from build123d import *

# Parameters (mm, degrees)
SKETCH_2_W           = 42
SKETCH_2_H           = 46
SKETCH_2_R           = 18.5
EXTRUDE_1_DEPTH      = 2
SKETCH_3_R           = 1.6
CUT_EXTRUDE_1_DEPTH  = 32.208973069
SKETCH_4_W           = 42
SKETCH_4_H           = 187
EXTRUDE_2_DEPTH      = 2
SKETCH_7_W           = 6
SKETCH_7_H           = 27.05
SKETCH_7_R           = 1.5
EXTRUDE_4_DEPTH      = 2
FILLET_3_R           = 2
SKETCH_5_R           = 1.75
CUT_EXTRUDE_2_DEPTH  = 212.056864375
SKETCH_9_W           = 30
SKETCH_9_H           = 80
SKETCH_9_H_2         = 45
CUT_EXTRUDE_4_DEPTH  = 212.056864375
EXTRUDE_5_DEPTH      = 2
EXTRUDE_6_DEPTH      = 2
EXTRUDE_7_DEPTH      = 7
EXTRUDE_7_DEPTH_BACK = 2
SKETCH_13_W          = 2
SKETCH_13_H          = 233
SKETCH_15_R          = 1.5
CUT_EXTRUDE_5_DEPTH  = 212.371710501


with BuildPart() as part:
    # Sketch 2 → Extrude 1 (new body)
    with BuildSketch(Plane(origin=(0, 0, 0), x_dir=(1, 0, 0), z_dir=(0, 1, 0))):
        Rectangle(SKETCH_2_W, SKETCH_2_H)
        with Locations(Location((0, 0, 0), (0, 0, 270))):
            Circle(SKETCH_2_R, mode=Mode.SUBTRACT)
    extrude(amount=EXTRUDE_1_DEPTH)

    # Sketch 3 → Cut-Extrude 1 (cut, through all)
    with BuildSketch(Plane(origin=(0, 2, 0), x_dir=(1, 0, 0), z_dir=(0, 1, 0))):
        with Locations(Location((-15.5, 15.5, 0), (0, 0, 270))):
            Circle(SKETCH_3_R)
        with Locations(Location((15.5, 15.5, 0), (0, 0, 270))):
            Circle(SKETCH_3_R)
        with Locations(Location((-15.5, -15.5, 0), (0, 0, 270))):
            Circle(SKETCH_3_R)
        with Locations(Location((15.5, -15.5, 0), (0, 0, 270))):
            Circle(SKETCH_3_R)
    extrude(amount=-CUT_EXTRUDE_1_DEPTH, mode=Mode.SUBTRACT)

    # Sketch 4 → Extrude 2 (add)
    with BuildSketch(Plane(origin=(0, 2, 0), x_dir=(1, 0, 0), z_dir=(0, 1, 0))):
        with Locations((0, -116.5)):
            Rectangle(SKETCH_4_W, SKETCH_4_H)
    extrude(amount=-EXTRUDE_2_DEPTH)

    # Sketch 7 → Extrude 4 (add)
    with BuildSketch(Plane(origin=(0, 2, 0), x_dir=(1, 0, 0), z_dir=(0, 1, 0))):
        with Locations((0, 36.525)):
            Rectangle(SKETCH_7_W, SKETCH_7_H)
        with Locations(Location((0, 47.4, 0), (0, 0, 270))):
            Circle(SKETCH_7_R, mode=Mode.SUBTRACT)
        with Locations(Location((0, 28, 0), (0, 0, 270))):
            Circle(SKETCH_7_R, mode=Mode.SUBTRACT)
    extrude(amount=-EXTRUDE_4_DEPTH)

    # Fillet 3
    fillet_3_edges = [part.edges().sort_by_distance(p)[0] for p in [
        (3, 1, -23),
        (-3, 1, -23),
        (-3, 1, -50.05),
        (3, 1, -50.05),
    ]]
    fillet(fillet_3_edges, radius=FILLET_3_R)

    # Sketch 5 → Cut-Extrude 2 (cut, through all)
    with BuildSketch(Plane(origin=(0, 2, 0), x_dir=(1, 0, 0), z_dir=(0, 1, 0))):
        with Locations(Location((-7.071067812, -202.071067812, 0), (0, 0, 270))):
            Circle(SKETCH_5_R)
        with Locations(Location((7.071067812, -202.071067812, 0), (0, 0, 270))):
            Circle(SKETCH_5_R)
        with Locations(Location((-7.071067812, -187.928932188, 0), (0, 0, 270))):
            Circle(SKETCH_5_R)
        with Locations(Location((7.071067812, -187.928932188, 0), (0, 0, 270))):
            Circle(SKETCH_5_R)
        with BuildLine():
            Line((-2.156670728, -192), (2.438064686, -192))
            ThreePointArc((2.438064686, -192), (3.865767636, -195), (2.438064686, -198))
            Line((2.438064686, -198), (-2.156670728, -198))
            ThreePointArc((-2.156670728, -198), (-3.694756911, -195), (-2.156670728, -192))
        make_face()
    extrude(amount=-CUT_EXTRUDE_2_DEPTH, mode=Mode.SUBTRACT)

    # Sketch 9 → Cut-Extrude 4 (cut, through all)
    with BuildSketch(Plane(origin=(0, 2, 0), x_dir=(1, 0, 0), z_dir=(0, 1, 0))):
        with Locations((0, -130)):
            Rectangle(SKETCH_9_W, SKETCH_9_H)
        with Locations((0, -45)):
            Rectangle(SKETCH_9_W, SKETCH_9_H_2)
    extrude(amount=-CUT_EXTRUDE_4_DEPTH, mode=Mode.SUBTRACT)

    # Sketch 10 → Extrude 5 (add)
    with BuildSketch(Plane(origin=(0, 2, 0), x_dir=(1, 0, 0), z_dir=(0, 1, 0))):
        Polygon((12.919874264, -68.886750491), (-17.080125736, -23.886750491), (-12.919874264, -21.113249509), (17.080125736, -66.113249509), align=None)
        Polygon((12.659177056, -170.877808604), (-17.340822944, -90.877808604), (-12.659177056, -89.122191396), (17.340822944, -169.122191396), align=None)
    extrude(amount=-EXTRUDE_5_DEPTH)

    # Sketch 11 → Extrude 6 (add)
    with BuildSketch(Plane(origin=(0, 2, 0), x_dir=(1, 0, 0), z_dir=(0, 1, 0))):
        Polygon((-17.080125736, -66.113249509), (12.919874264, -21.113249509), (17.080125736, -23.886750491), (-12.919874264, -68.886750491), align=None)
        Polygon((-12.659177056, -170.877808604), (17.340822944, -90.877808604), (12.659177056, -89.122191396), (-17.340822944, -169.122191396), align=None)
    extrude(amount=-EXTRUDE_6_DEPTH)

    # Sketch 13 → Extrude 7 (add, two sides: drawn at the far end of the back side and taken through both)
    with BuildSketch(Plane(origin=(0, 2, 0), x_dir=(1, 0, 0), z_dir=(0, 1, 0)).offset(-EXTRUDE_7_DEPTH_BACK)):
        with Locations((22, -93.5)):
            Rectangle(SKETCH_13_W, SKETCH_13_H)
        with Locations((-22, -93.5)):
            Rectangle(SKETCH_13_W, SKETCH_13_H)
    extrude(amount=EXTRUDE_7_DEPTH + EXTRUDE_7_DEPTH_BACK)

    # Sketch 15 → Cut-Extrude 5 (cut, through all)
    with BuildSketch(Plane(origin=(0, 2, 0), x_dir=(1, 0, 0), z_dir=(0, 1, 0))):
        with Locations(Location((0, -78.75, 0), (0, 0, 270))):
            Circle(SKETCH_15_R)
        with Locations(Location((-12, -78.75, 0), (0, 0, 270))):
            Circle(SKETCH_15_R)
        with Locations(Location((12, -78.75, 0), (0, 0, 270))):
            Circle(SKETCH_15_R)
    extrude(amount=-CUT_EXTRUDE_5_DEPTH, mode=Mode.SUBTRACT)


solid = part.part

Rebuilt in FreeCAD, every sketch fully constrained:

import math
import FreeCAD as App
import Part
import Sketcher
from FreeCAD import Vector
Q = App.Units.Quantity


def edges_at(feature, points):
    """Names of the edges that pass closest to the given points."""
    edges = feature.Shape.Edges
    near = lambda p: min(range(len(edges)), key=lambda i: edges[i].distToShape(Part.Vertex(*p))[0])
    return sorted({f"Edge{near(p) + 1}" for p in points})

doc = App.newDocument("Part")
body = doc.addObject("PartDesign::Body", "Body")

# Sketch on XZ plane
sketch1 = body.newObject("Sketcher::SketchObject", "Sketch")
sketch1.AttachmentSupport = (doc.getObject("XZ_Plane"), [""])
sketch1.MapMode = "FlatFace"
sketch1.addGeometry([
    Part.LineSegment(Vector(-21, -23, 0), Vector(-21, 23, 0)),  # 0
    Part.LineSegment(Vector(-21, 23, 0), Vector(21, 23, 0)),  # 1
    Part.LineSegment(Vector(21, 23, 0), Vector(21, -23, 0)),  # 2
    Part.LineSegment(Vector(21, -23, 0), Vector(-21, -23, 0)),  # 3
    Part.Circle(Vector(0, 0, 0), Vector(0, 0, 1), 18),  # 4
], False)
sketch1.addConstraint([
    Sketcher.Constraint("Coincident", 0, 2, 1, 1),
    Sketcher.Constraint("Coincident", 1, 2, 2, 1),
    Sketcher.Constraint("Coincident", 2, 2, 3, 1),
    Sketcher.Constraint("Coincident", 3, 2, 0, 1),
    Sketcher.Constraint("Vertical", 0),
    Sketcher.Constraint("Horizontal", 1),
    Sketcher.Constraint("Vertical", 2),
    Sketcher.Constraint("Horizontal", 3),
    Sketcher.Constraint("Coincident", 4, 3, -1, 1),
    Sketcher.Constraint("Symmetric", 0, 2, 2, 2, -1, 1),
    Sketcher.Constraint("Diameter", 4, Q("37 mm")),
    Sketcher.Constraint("DistanceX", 1, 1, 1, 2, Q("42 mm")),
    Sketcher.Constraint("DistanceY", 0, 1, 0, 2, Q("46 mm")),
])
pad1 = body.newObject("PartDesign::Pad", "Pad")
pad1.Profile = sketch1
pad1.Length = 2
pad1.Reversed = True

# Sketch on XZ plane
sketch2 = body.newObject("Sketcher::SketchObject", "Sketch001")
sketch2.AttachmentSupport = (doc.getObject("XZ_Plane"), [""])
sketch2.MapMode = "FlatFace"
sketch2.AttachmentOffset = App.Placement(Vector(0, 0, -2), App.Rotation())
sketch2.addGeometry([
    Part.Circle(Vector(-15.5, -15.5, 0), Vector(0, 0, 1), 1.6),
    Part.Circle(Vector(15.5, -15.5, 0), Vector(0, 0, 1), 1.6),
    Part.Circle(Vector(-15.5, 15.5, 0), Vector(0, 0, 1), 1.6),
    Part.Circle(Vector(15.5, 15.5, 0), Vector(0, 0, 1), 1.6),
], False)
sketch2.addConstraint([
    Sketcher.Constraint("Equal", 0, 1),
    Sketcher.Constraint("Equal", 1, 2),
    Sketcher.Constraint("Equal", 2, 3),
    Sketcher.Constraint("Symmetric", 1, 3, 2, 3, -1, 1),
    Sketcher.Constraint("Symmetric", 0, 3, 3, 3, -1, 1),
    Sketcher.Constraint("Symmetric", 0, 3, 1, 3, -2),
    Sketcher.Constraint("Diameter", 0, Q("3.2 mm")),
    Sketcher.Constraint("DistanceX", 0, 3, 1, 3, Q("31 mm")),
    Sketcher.Constraint("DistanceY", 0, 3, 2, 3, Q("31 mm")),
])
pocket1 = body.newObject("PartDesign::Pocket", "Pocket")
pocket1.Profile = sketch2
pocket1.Type = "ThroughAll"
pocket1.Reversed = True

# Sketch on XZ plane
sketch3 = body.newObject("Sketcher::SketchObject", "Sketch002")
sketch3.AttachmentSupport = (doc.getObject("XZ_Plane"), [""])
sketch3.MapMode = "FlatFace"
sketch3.AttachmentOffset = App.Placement(Vector(0, 0, -2), App.Rotation())
sketch3.addGeometry([
    Part.LineSegment(Vector(-21, 23, 0), Vector(-21, 210, 0)),
    Part.LineSegment(Vector(-21, 210, 0), Vector(21, 210, 0)),
    Part.LineSegment(Vector(21, 210, 0), Vector(21, 23, 0)),
    Part.LineSegment(Vector(21, 23, 0), Vector(-21, 23, 0)),
], False)
sketch3.addConstraint([
    Sketcher.Constraint("Coincident", 0, 2, 1, 1),
    Sketcher.Constraint("Coincident", 1, 2, 2, 1),
    Sketcher.Constraint("Coincident", 2, 2, 3, 1),
    Sketcher.Constraint("Coincident", 3, 2, 0, 1),
    Sketcher.Constraint("Vertical", 0),
    Sketcher.Constraint("Horizontal", 1),
    Sketcher.Constraint("Vertical", 2),
    Sketcher.Constraint("Horizontal", 3),
    Sketcher.Constraint("DistanceX", 1, 1, 1, 2, Q("42 mm")),
    Sketcher.Constraint("DistanceY", 0, 1, 0, 2, Q("187 mm")),
    Sketcher.Constraint("DistanceX", 0, 2, -1, 1, Q("21 mm")),
    Sketcher.Constraint("DistanceY", -1, 1, 0, 2, Q("210 mm")),
])
pad2 = body.newObject("PartDesign::Pad", "Pad001")
pad2.Profile = sketch3
pad2.Length = 2

# Sketch on XZ plane
sketch4 = body.newObject("Sketcher::SketchObject", "Sketch003")
sketch4.AttachmentSupport = (doc.getObject("XZ_Plane"), [""])
sketch4.MapMode = "FlatFace"
sketch4.AttachmentOffset = App.Placement(Vector(0, 0, -2), App.Rotation())
sketch4.addGeometry([
    Part.LineSegment(Vector(-3, -50, 0), Vector(-3, -23, 0)),  # 0
    Part.LineSegment(Vector(-3, -23, 0), Vector(3, -23, 0)),  # 1
    Part.LineSegment(Vector(3, -23, 0), Vector(3, -50, 0)),  # 2
    Part.LineSegment(Vector(3, -50, 0), Vector(-3, -50, 0)),  # 3
    Part.Circle(Vector(0, -28, 0), Vector(0, 0, 1), 1.5),  # 4
    Part.Circle(Vector(0, -47.4, 0), Vector(0, 0, 1), 1.5),  # 5
], False)
sketch4.addConstraint([
    Sketcher.Constraint("Coincident", 0, 2, 1, 1),
    Sketcher.Constraint("Coincident", 1, 2, 2, 1),
    Sketcher.Constraint("Coincident", 2, 2, 3, 1),
    Sketcher.Constraint("Coincident", 3, 2, 0, 1),
    Sketcher.Constraint("Vertical", 0),
    Sketcher.Constraint("Horizontal", 1),
    Sketcher.Constraint("Vertical", 2),
    Sketcher.Constraint("Horizontal", 3),
    Sketcher.Constraint("Equal", 4, 5),
    Sketcher.Constraint("PointOnObject", 4, 3, -2),
    Sketcher.Constraint("PointOnObject", 5, 3, -2),
    Sketcher.Constraint("Diameter", 4, Q("3 mm")),
    Sketcher.Constraint("DistanceX", 1, 1, 1, 2, Q("6 mm")),
    Sketcher.Constraint("DistanceY", 4, 3, -1, 1, Q("28 mm")),
    Sketcher.Constraint("DistanceX", 0, 2, -1, 1, Q("3 mm")),
    Sketcher.Constraint("DistanceY", 0, 2, -1, 1, Q("23 mm")),
    Sketcher.Constraint("DistanceY", 0, 1, 0, 2, Q("27.05 mm")),
    Sketcher.Constraint("DistanceY", 5, 3, -1, 1, Q("47.4 mm")),
])
pad3 = body.newObject("PartDesign::Pad", "Pad002")
pad3.Profile = sketch4
pad3.Length = 2
doc.recompute()

fillet = body.newObject("PartDesign::Fillet", "Fillet")
fillet.Base = (pad3, edges_at(pad3, [
    (3, 1, -23),
    (-3, 1, -23),
    (-3, 1, -50.05),
    (3, 1, -50.05),
]))
fillet.Radius = 2

# Sketch on XZ plane
sketch5 = body.newObject("Sketcher::SketchObject", "Sketch004")
sketch5.AttachmentSupport = (doc.getObject("XZ_Plane"), [""])
sketch5.MapMode = "FlatFace"
sketch5.AttachmentOffset = App.Placement(Vector(0, 0, -2), App.Rotation())
sketch5.addGeometry([
    Part.Circle(Vector(-7.1, 202.1, 0), Vector(0, 0, 1), 1.8),  # 0
    Part.Circle(Vector(7.1, 202.1, 0), Vector(0, 0, 1), 1.8),  # 1
    Part.Circle(Vector(-7.1, 187.9, 0), Vector(0, 0, 1), 1.8),  # 2
    Part.Circle(Vector(7.1, 187.9, 0), Vector(0, 0, 1), 1.8),  # 3
    Part.LineSegment(Vector(2.4, 192, 0), Vector(-2.2, 192, 0)),  # 4
    Part.ArcOfCircle(Part.Circle(Vector(0, 195, 0), Vector(0, 0, 1), 3.7), math.radians(126), math.radians(234)),  # 5
    Part.LineSegment(Vector(-2.2, 198, 0), Vector(2.4, 198, 0)),  # 6
    Part.ArcOfCircle(Part.Circle(Vector(0, 195, 0), Vector(0, 0, 1), 3.9), math.radians(-51), math.radians(51)),  # 7
], False)
sketch5.addConstraint([
    Sketcher.Constraint("Coincident", 4, 2, 5, 2),
    Sketcher.Constraint("Coincident", 5, 1, 6, 1),
    Sketcher.Constraint("Coincident", 6, 2, 7, 2),
    Sketcher.Constraint("Coincident", 7, 1, 4, 1),
    Sketcher.Constraint("Horizontal", 4),
    Sketcher.Constraint("Horizontal", 6),
    Sketcher.Constraint("Coincident", 7, 3, 5, 3),
    Sketcher.Constraint("Equal", 0, 1),
    Sketcher.Constraint("Equal", 1, 2),
    Sketcher.Constraint("Equal", 2, 3),
    Sketcher.Constraint("Symmetric", 0, 3, 1, 3, -2),
    Sketcher.Constraint("Symmetric", 2, 3, 3, 3, -2),
    Sketcher.Constraint("PointOnObject", 5, 3, -2),
    Sketcher.Constraint("Vertical", 0, 3, 2, 3),
    Sketcher.Constraint("Vertical", 4, 2, 5, 1),
    Sketcher.Constraint("Diameter", 0, Q("3.5 mm")),
    Sketcher.Constraint("DistanceY", -1, 1, 5, 3, Q("195 mm")),
    Sketcher.Constraint("DistanceY", -1, 1, 4, 2, Q("192 mm")),
    Sketcher.Constraint("Radius", 5, Q("3.694757 mm")),
    Sketcher.Constraint("Radius", 7, Q("3.865768 mm")),
    Sketcher.Constraint("DistanceX", 4, 2, 3, 3, Q("9.227739 mm")),
    Sketcher.Constraint("DistanceY", -1, 1, 0, 3, Q("202.071068 mm")),
    Sketcher.Constraint("DistanceY", -1, 1, 2, 3, Q("187.928932 mm")),
])
pocket2 = body.newObject("PartDesign::Pocket", "Pocket001")
pocket2.Profile = sketch5
pocket2.Type = "ThroughAll"
pocket2.Reversed = True

# Sketch on XZ plane
sketch6 = body.newObject("Sketcher::SketchObject", "Sketch005")
sketch6.AttachmentSupport = (doc.getObject("XZ_Plane"), [""])
sketch6.MapMode = "FlatFace"
sketch6.AttachmentOffset = App.Placement(Vector(0, 0, -2), App.Rotation())
sketch6.addGeometry([
    Part.LineSegment(Vector(-15, 90, 0), Vector(-15, 170, 0)),  # 0
    Part.LineSegment(Vector(-15, 170, 0), Vector(15, 170, 0)),  # 1
    Part.LineSegment(Vector(15, 170, 0), Vector(15, 90, 0)),  # 2
    Part.LineSegment(Vector(15, 90, 0), Vector(-15, 90, 0)),  # 3
    Part.LineSegment(Vector(-15, 22, 0), Vector(-15, 68, 0)),  # 4
    Part.LineSegment(Vector(-15, 68, 0), Vector(15, 68, 0)),  # 5
    Part.LineSegment(Vector(15, 68, 0), Vector(15, 22, 0)),  # 6
    Part.LineSegment(Vector(15, 22, 0), Vector(-15, 22, 0)),  # 7
], False)
sketch6.addConstraint([
    Sketcher.Constraint("Coincident", 0, 2, 1, 1),
    Sketcher.Constraint("Coincident", 1, 2, 2, 1),
    Sketcher.Constraint("Coincident", 2, 2, 3, 1),
    Sketcher.Constraint("Coincident", 3, 2, 0, 1),
    Sketcher.Constraint("Coincident", 4, 2, 5, 1),
    Sketcher.Constraint("Coincident", 5, 2, 6, 1),
    Sketcher.Constraint("Coincident", 6, 2, 7, 1),
    Sketcher.Constraint("Coincident", 7, 2, 4, 1),
    Sketcher.Constraint("Vertical", 0),
    Sketcher.Constraint("Horizontal", 1),
    Sketcher.Constraint("Vertical", 2),
    Sketcher.Constraint("Horizontal", 3),
    Sketcher.Constraint("Vertical", 4),
    Sketcher.Constraint("Horizontal", 5),
    Sketcher.Constraint("Vertical", 6),
    Sketcher.Constraint("Horizontal", 7),
    Sketcher.Constraint("Vertical", 3, 2, 4, 2),
    Sketcher.Constraint("Vertical", 2, 2, 5, 2),
    Sketcher.Constraint("DistanceX", 1, 1, 1, 2, Q("30 mm")),
    Sketcher.Constraint("DistanceY", 0, 1, 0, 2, Q("80 mm")),
    Sketcher.Constraint("DistanceY", 4, 1, 4, 2, Q("45 mm")),
    Sketcher.Constraint("DistanceX", 0, 2, -1, 1, Q("15 mm")),
    Sketcher.Constraint("DistanceY", -1, 1, 0, 2, Q("170 mm")),
    Sketcher.Constraint("DistanceY", -1, 1, 4, 2, Q("67.5 mm")),
])
pocket3 = body.newObject("PartDesign::Pocket", "Pocket002")
pocket3.Profile = sketch6
pocket3.Type = "ThroughAll"
pocket3.Reversed = True

# Sketch on XZ plane
sketch7 = body.newObject("Sketcher::SketchObject", "Sketch006")
sketch7.AttachmentSupport = (doc.getObject("XZ_Plane"), [""])
sketch7.MapMode = "FlatFace"
sketch7.AttachmentOffset = App.Placement(Vector(0, 0, -2), App.Rotation())
sketch7.addGeometry([
    Part.LineSegment(Vector(-17, 24, 0), Vector(13, 69, 0)),  # 0
    Part.LineSegment(Vector(13, 69, 0), Vector(17, 66, 0)),  # 1
    Part.LineSegment(Vector(17, 66, 0), Vector(-13, 21, 0)),  # 2
    Part.LineSegment(Vector(-13, 21, 0), Vector(-17, 24, 0)),  # 3
    Part.LineSegment(Vector(-17, 91, 0), Vector(13, 171, 0)),  # 4
    Part.LineSegment(Vector(13, 171, 0), Vector(17, 169, 0)),  # 5
    Part.LineSegment(Vector(17, 169, 0), Vector(-13, 89, 0)),  # 6
    Part.LineSegment(Vector(-13, 89, 0), Vector(-17, 91, 0)),  # 7
], False)
sketch7.addConstraint([
    Sketcher.Constraint("Coincident", 0, 2, 1, 1),
    Sketcher.Constraint("Coincident", 1, 2, 2, 1),
    Sketcher.Constraint("Coincident", 2, 2, 3, 1),
    Sketcher.Constraint("Coincident", 3, 2, 0, 1),
    Sketcher.Constraint("Coincident", 4, 2, 5, 1),
    Sketcher.Constraint("Coincident", 5, 2, 6, 1),
    Sketcher.Constraint("Coincident", 6, 2, 7, 1),
    Sketcher.Constraint("Coincident", 7, 2, 4, 1),
    Sketcher.Constraint("Perpendicular", 0, 1),
    Sketcher.Constraint("Perpendicular", 1, 2),
    Sketcher.Constraint("Perpendicular", 2, 3),
    Sketcher.Constraint("Perpendicular", 4, 5),
    Sketcher.Constraint("Perpendicular", 5, 6),
    Sketcher.Constraint("Perpendicular", 6, 7),
    Sketcher.Constraint("Equal", 3, 5),
    Sketcher.Constraint("Distance", 1, Q("5 mm")),
    Sketcher.Constraint("DistanceX", 2, 2, 1, 2, Q("30 mm")),
    Sketcher.Constraint("DistanceY", 2, 2, 1, 2, Q("45 mm")),
    Sketcher.Constraint("DistanceX", 6, 2, 5, 2, Q("30 mm")),
    Sketcher.Constraint("DistanceY", 6, 2, 5, 2, Q("80 mm")),
    Sketcher.Constraint("DistanceY", -1, 1, 0, 2, Q("68.88675 mm")),
    Sketcher.Constraint("DistanceY", -1, 1, 4, 2, Q("170.877809 mm")),
    Sketcher.Constraint("DistanceX", 4, 2, 1, 2, Q("4.420949 mm")),
    Sketcher.Constraint("DistanceX", -1, 1, 0, 2, Q("12.919874 mm")),
])
pad4 = body.newObject("PartDesign::Pad", "Pad003")
pad4.Profile = sketch7
pad4.Length = 2

# Sketch on XZ plane
sketch8 = body.newObject("Sketcher::SketchObject", "Sketch007")
sketch8.AttachmentSupport = (doc.getObject("XZ_Plane"), [""])
sketch8.MapMode = "FlatFace"
sketch8.AttachmentOffset = App.Placement(Vector(0, 0, -2), App.Rotation())
sketch8.addGeometry([
    Part.LineSegment(Vector(13, 21, 0), Vector(-17, 66, 0)),  # 0
    Part.LineSegment(Vector(-17, 66, 0), Vector(-13, 69, 0)),  # 1
    Part.LineSegment(Vector(-13, 69, 0), Vector(17, 24, 0)),  # 2
    Part.LineSegment(Vector(17, 24, 0), Vector(13, 21, 0)),  # 3
    Part.LineSegment(Vector(-13, 171, 0), Vector(17, 91, 0)),  # 4
    Part.LineSegment(Vector(17, 91, 0), Vector(13, 89, 0)),  # 5
    Part.LineSegment(Vector(13, 89, 0), Vector(-17, 169, 0)),  # 6
    Part.LineSegment(Vector(-17, 169, 0), Vector(-13, 171, 0)),  # 7
], False)
sketch8.addConstraint([
    Sketcher.Constraint("Coincident", 0, 2, 1, 1),
    Sketcher.Constraint("Coincident", 1, 2, 2, 1),
    Sketcher.Constraint("Coincident", 2, 2, 3, 1),
    Sketcher.Constraint("Coincident", 3, 2, 0, 1),
    Sketcher.Constraint("Coincident", 4, 2, 5, 1),
    Sketcher.Constraint("Coincident", 5, 2, 6, 1),
    Sketcher.Constraint("Coincident", 6, 2, 7, 1),
    Sketcher.Constraint("Coincident", 7, 2, 4, 1),
    Sketcher.Constraint("Perpendicular", 0, 1),
    Sketcher.Constraint("Perpendicular", 1, 2),
    Sketcher.Constraint("Perpendicular", 2, 3),
    Sketcher.Constraint("Perpendicular", 4, 5),
    Sketcher.Constraint("Perpendicular", 5, 6),
    Sketcher.Constraint("Perpendicular", 6, 7),
    Sketcher.Constraint("Equal", 3, 5),
    Sketcher.Constraint("Distance", 1, Q("5 mm")),
    Sketcher.Constraint("DistanceX", 1, 2, 2, 2, Q("30 mm")),
    Sketcher.Constraint("DistanceY", 2, 2, 1, 2, Q("45 mm")),
    Sketcher.Constraint("DistanceX", 6, 2, 5, 2, Q("30 mm")),
    Sketcher.Constraint("DistanceY", 5, 2, 6, 2, Q("80 mm")),
    Sketcher.Constraint("DistanceY", -1, 1, 0, 2, Q("66.11325 mm")),
    Sketcher.Constraint("DistanceY", -1, 1, 4, 2, Q("90.877809 mm")),
    Sketcher.Constraint("DistanceX", 0, 2, 4, 2, Q("34.420949 mm")),
    Sketcher.Constraint("DistanceX", 0, 2, -1, 1, Q("17.080126 mm")),
])
pad5 = body.newObject("PartDesign::Pad", "Pad004")
pad5.Profile = sketch8
pad5.Length = 2

# Sketch on XZ plane
sketch9 = body.newObject("Sketcher::SketchObject", "Sketch008")
sketch9.AttachmentSupport = (doc.getObject("XZ_Plane"), [""])
sketch9.MapMode = "FlatFace"
sketch9.AttachmentOffset = App.Placement(Vector(0, 0, -2), App.Rotation())
sketch9.addGeometry([
    Part.LineSegment(Vector(21, -23, 0), Vector(21, 210, 0)),  # 0
    Part.LineSegment(Vector(21, 210, 0), Vector(23, 210, 0)),  # 1
    Part.LineSegment(Vector(23, 210, 0), Vector(23, -23, 0)),  # 2
    Part.LineSegment(Vector(23, -23, 0), Vector(21, -23, 0)),  # 3
    Part.LineSegment(Vector(-23, -23, 0), Vector(-23, 210, 0)),  # 4
    Part.LineSegment(Vector(-23, 210, 0), Vector(-21, 210, 0)),  # 5
    Part.LineSegment(Vector(-21, 210, 0), Vector(-21, -23, 0)),  # 6
    Part.LineSegment(Vector(-21, -23, 0), Vector(-23, -23, 0)),  # 7
], False)
sketch9.addConstraint([
    Sketcher.Constraint("Coincident", 0, 2, 1, 1),
    Sketcher.Constraint("Coincident", 1, 2, 2, 1),
    Sketcher.Constraint("Coincident", 2, 2, 3, 1),
    Sketcher.Constraint("Coincident", 3, 2, 0, 1),
    Sketcher.Constraint("Coincident", 4, 2, 5, 1),
    Sketcher.Constraint("Coincident", 5, 2, 6, 1),
    Sketcher.Constraint("Coincident", 6, 2, 7, 1),
    Sketcher.Constraint("Coincident", 7, 2, 4, 1),
    Sketcher.Constraint("Vertical", 0),
    Sketcher.Constraint("Horizontal", 1),
    Sketcher.Constraint("Vertical", 2),
    Sketcher.Constraint("Horizontal", 3),
    Sketcher.Constraint("Vertical", 4),
    Sketcher.Constraint("Horizontal", 5),
    Sketcher.Constraint("Vertical", 6),
    Sketcher.Constraint("Horizontal", 7),
    Sketcher.Constraint("Symmetric", 1, 2, 4, 2, -2),
    Sketcher.Constraint("Symmetric", 3, 2, 6, 2, -2),
    Sketcher.Constraint("DistanceX", 1, 1, 1, 2, Q("2 mm")),
    Sketcher.Constraint("DistanceY", 0, 1, 0, 2, Q("233 mm")),
    Sketcher.Constraint("DistanceX", -1, 1, 0, 2, Q("21 mm")),
    Sketcher.Constraint("DistanceY", -1, 1, 0, 2, Q("210 mm")),
])
pad6 = body.newObject("PartDesign::Pad", "Pad005")
pad6.Profile = sketch9
pad6.Type = "TwoLengths"
pad6.Length = 7
pad6.Length2 = 2
pad6.Reversed = True

# Sketch on XZ plane
sketch10 = body.newObject("Sketcher::SketchObject", "Sketch009")
sketch10.AttachmentSupport = (doc.getObject("XZ_Plane"), [""])
sketch10.MapMode = "FlatFace"
sketch10.AttachmentOffset = App.Placement(Vector(0, 0, -2), App.Rotation())
sketch10.addGeometry([
    Part.Circle(Vector(0, 78.8, 0), Vector(0, 0, 1), 1.5),
    Part.Circle(Vector(-12, 78.8, 0), Vector(0, 0, 1), 1.5),
    Part.Circle(Vector(12, 78.8, 0), Vector(0, 0, 1), 1.5),
], False)
sketch10.addConstraint([
    Sketcher.Constraint("Equal", 0, 1),
    Sketcher.Constraint("Equal", 1, 2),
    Sketcher.Constraint("Symmetric", 1, 3, 2, 3, -2),
    Sketcher.Constraint("PointOnObject", 0, 3, -2),
    Sketcher.Constraint("Horizontal", 0, 3, 1, 3),
    Sketcher.Constraint("Diameter", 0, Q("3 mm")),
    Sketcher.Constraint("DistanceX", 1, 3, -1, 1, Q("12 mm")),
    Sketcher.Constraint("DistanceY", -1, 1, 0, 3, Q("78.75 mm")),
])
pocket4 = body.newObject("PartDesign::Pocket", "Pocket003")
pocket4.Profile = sketch10
pocket4.Type = "ThroughAll"
pocket4.Reversed = True

doc.recompute()
